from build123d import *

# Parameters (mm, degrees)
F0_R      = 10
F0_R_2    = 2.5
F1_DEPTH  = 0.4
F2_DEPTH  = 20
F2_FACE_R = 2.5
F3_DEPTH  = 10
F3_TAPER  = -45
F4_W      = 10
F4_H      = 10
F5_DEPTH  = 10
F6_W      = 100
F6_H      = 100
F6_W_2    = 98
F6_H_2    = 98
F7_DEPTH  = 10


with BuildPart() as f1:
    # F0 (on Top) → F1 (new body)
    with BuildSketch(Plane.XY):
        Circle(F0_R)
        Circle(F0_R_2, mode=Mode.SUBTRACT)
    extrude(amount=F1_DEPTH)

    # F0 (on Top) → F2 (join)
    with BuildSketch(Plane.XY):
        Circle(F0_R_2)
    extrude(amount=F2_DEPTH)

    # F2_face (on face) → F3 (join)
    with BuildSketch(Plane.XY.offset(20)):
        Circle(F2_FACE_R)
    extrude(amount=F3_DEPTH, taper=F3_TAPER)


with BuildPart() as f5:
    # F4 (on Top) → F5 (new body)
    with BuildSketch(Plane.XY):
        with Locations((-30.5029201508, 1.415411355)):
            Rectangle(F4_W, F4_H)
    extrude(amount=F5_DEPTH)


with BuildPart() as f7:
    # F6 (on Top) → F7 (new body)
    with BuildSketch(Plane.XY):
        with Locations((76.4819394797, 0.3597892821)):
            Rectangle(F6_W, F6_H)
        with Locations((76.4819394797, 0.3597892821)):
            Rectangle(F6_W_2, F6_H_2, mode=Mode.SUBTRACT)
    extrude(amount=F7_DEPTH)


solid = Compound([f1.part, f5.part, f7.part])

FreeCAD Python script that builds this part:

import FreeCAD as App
import Part
import Sketcher
Q = App.Units.Quantity


def add_polygon(sketch, points):
    """Adds a closed chain of lines whose ends are joined by coincident constraints."""
    first, n = sketch.GeometryCount, len(points)
    for a, b in zip(points, points[1:] + points[:1]):
        sketch.addGeometry(Part.LineSegment(App.Vector(*a, 0), App.Vector(*b, 0)), False)
    for i in range(n):
        sketch.addConstraint(Sketcher.Constraint("Coincident", first + i, 2, first + (i + 1) % n, 1))

doc = App.newDocument("Part")
params = doc.addObject("Spreadsheet::Sheet", "Params")
for row, (alias, value) in enumerate([
    ("sketch1_diameter", "20 mm"),
    ("sketch1_diameter2", "5 mm"),
    ("pad1_length", "0.4 mm"),
    ("sketch2_diameter", "5 mm"),
    ("pad2_length", "20 mm"),
    ("sketch3_diameter", "5 mm"),
    ("pad3_length", "10 mm"),
    ("pad3_taper", "45 deg"),
    ("sketch4_width", "10 mm"),
    ("pad4_length", "10 mm"),
    ("sketch5_width", "100 mm"),
    ("sketch5_width2", "98 mm"),
    ("pad5_length", "10 mm"),
], start=1):
    params.set(f"A{row}", alias)
    params.set(f"B{row}", "=" + value)
    params.setAlias(f"B{row}", alias)

body = doc.addObject("PartDesign::Body", "Body")

# Sketch on XY plane
sketch1 = doc.addObject("Sketcher::SketchObject", "Sketch")
body.addObject(sketch1)
sketch1.AttachmentSupport = (doc.XY_Plane, [""])
sketch1.MapMode = "FlatFace"
sketch1.addGeometry([
    Part.Circle(App.Vector(0, 0, 0), App.Vector(0, 0, 1), 10),
    Part.Circle(App.Vector(0, 0, 0), App.Vector(0, 0, 1), 2.5),
], False)
sketch1.addConstraint([
    Sketcher.Constraint("Coincident", 0, 3, -1, 1),
    Sketcher.Constraint("Coincident", 1, 3, -1, 1),
    Sketcher.Constraint("Diameter", 0, Q("20 mm")),
    Sketcher.Constraint("Diameter", 1, Q("5 mm")),
])
sketch1.setExpression("Constraints[2]", "Params.sketch1_diameter")
sketch1.setExpression("Constraints[3]", "Params.sketch1_diameter2")
pad1 = doc.addObject("PartDesign::Pad", "Pad")
body.addObject(pad1)
pad1.Profile = sketch1
pad1.setExpression("Length", "Params.pad1_length")

# Sketch on XY plane
sketch2 = doc.addObject("Sketcher::SketchObject", "Sketch001")
body.addObject(sketch2)
sketch2.AttachmentSupport = (doc.XY_Plane, [""])
sketch2.MapMode = "FlatFace"
sketch2.addGeometry(Part.Circle(App.Vector(0, 0, 0), App.Vector(0, 0, 1), 2.5), False)
sketch2.addConstraint([
    Sketcher.Constraint("Coincident", 0, 3, -1, 1),
    Sketcher.Constraint("Diameter", 0, Q("5 mm")),
])
sketch2.setExpression("Constraints[1]", "Params.sketch2_diameter")
pad2 = doc.addObject("PartDesign::Pad", "Pad001")
body.addObject(pad2)
pad2.Profile = sketch2
pad2.setExpression("Length", "Params.pad2_length")

# Sketch on XY plane
sketch3 = doc.addObject("Sketcher::SketchObject", "Sketch002")
body.addObject(sketch3)
sketch3.AttachmentSupport = (doc.XY_Plane, [""])
sketch3.MapMode = "FlatFace"
sketch3.AttachmentOffset = App.Placement(App.Vector(0, 0, 20), App.Rotation())
sketch3.addGeometry(Part.Circle(App.Vector(0, 0, 0), App.Vector(0, 0, 1), 2.5), False)
sketch3.addConstraint([
    Sketcher.Constraint("Coincident", 0, 3, -1, 1),
    Sketcher.Constraint("Diameter", 0, Q("5 mm")),
])
sketch3.setExpression("Constraints[1]", "Params.sketch3_diameter")
pad3 = doc.addObject("PartDesign::Pad", "Pad002")
body.addObject(pad3)
pad3.Profile = sketch3
pad3.setExpression("Length", "Params.pad3_length")
pad3.setExpression("TaperAngle", "Params.pad3_taper")
body2 = doc.addObject("PartDesign::Body", "Body001")

# Sketch on XY plane
sketch4 = doc.addObject("Sketcher::SketchObject", "Sketch003")
body2.addObject(sketch4)
sketch4.AttachmentSupport = (doc.getObject("XY_Plane001"), [""])
sketch4.MapMode = "FlatFace"
add_polygon(sketch4, [(-36, 6), (-36, -4), (-26, -4), (-26, 6)])  # lines 0-3
sketch4.addConstraint([
    Sketcher.Constraint("Vertical", 0),
    Sketcher.Constraint("Horizontal", 1),
    Sketcher.Constraint("Vertical", 2),
    Sketcher.Constraint("Horizontal", 3),
    Sketcher.Constraint("Equal", 3, 0),
    Sketcher.Constraint("DistanceX", 1, 1, 1, 2, Q("10 mm")),
    Sketcher.Constraint("DistanceX", 0, 2, -1, 1, Q("35.50292 mm")),
    Sketcher.Constraint("DistanceY", 0, 2, -1, 1, Q("3.584589 mm")),
])
sketch4.setExpression("Constraints[9]", "Params.sketch4_width")
pad4 = doc.addObject("PartDesign::Pad", "Pad003")
body2.addObject(pad4)
pad4.Profile = sketch4
pad4.setExpression("Length", "Params.pad4_length")
body3 = doc.addObject("PartDesign::Body", "Body002")

# Sketch on XY plane
sketch5 = doc.addObject("Sketcher::SketchObject", "Sketch004")
body3.addObject(sketch5)
sketch5.AttachmentSupport = (doc.getObject("XY_Plane002"), [""])
sketch5.MapMode = "FlatFace"
add_polygon(sketch5, [(26, 50), (26, -50), (126, -50), (126, 50)])  # lines 0-3
add_polygon(sketch5, [(125, -49), (27, -49), (27, 49), (125, 49)])  # lines 4-7
sketch5.addConstraint([
    Sketcher.Constraint("Vertical", 0),
    Sketcher.Constraint("Horizontal", 1),
    Sketcher.Constraint("Vertical", 2),
    Sketcher.Constraint("Horizontal", 3),
    Sketcher.Constraint("Horizontal", 4),
    Sketcher.Constraint("Vertical", 5),
    Sketcher.Constraint("Horizontal", 6),
    Sketcher.Constraint("Vertical", 7),
    Sketcher.Constraint("Equal", 3, 0),
    Sketcher.Constraint("Equal", 6, 5),
    Sketcher.Constraint("DistanceX", 1, 1, 1, 2, Q("100 mm")),
    Sketcher.Constraint("DistanceX", 4, 2, 4, 1, Q("98 mm")),
    Sketcher.Constraint("DistanceX", 0, 2, 4, 2, Q("1 mm")),
    Sketcher.Constraint("DistanceY", 0, 2, 4, 2, Q("1 mm")),
    Sketcher.Constraint("DistanceX", -1, 1, 0, 2, Q("26.481939 mm")),
    Sketcher.Constraint("DistanceY", 0, 2, -1, 1, Q("49.640211 mm")),
])
sketch5.setExpression("Constraints[18]", "Params.sketch5_width")
sketch5.setExpression("Constraints[19]", "Params.sketch5_width2")
pad5 = doc.addObject("PartDesign::Pad", "Pad004")
body3.addObject(pad5)
pad5.Profile = sketch5
pad5.setExpression("Length", "Params.pad5_length")

doc.recompute()
